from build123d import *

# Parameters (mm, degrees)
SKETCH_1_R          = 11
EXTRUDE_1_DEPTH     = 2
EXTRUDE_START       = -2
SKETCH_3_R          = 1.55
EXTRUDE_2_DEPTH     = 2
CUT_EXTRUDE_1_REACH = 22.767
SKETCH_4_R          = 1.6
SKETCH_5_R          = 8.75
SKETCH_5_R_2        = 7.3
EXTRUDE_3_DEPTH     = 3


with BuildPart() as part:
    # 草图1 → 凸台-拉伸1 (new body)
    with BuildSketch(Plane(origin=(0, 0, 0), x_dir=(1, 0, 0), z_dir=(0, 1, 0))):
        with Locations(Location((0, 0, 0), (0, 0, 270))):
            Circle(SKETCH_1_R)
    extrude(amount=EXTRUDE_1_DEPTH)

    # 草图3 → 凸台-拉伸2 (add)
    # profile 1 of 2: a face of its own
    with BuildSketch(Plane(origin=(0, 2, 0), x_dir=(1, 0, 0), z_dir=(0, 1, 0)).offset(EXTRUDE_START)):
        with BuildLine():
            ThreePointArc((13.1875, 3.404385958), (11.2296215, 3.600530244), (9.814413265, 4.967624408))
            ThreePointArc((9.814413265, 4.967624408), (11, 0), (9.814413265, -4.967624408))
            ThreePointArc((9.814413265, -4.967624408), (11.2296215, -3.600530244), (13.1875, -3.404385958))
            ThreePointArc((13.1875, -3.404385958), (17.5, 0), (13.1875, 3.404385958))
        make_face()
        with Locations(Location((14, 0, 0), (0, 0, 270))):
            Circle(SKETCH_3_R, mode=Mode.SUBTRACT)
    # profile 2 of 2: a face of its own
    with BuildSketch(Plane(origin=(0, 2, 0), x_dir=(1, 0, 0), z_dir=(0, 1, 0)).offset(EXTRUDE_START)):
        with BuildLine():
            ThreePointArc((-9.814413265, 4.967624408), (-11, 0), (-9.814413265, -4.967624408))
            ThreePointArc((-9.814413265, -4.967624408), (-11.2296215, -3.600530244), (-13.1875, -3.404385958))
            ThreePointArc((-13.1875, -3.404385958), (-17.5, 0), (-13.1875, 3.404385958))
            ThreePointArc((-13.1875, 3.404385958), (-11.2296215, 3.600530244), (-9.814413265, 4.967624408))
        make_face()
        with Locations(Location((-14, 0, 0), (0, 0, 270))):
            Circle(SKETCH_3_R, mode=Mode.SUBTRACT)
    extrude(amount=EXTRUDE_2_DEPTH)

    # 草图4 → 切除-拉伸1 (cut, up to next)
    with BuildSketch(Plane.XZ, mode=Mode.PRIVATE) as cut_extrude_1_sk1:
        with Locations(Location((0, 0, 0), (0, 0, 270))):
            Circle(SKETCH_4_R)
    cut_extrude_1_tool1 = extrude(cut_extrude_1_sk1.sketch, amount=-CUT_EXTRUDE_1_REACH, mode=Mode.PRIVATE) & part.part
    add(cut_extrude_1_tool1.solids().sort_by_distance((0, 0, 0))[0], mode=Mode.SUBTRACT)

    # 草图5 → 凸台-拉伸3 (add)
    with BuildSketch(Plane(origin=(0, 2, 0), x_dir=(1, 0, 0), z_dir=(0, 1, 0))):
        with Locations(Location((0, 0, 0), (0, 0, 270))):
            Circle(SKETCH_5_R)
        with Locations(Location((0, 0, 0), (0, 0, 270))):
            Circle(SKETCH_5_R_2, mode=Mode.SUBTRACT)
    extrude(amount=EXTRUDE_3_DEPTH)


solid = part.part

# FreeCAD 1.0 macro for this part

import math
import FreeCAD as App
import Part
import Sketcher

V = App.Vector

doc = App.newDocument("Part")
params = doc.addObject("Spreadsheet::Sheet", "Params")
for row, (alias, value) in enumerate([
    ("sketch1_diameter", "22 mm"),
    ("pad1_length", "2 mm"),
    ("sketch2_radius", "3 mm"),
    ("sketch2_radius2", "11 mm"),
    ("sketch2_diameter", "3.1 mm"),
    ("sketch2_radius3", "3.5 mm"),
    ("pad2_length", "2 mm"),
    ("sketch3_diameter", "3.2 mm"),
    ("sketch4_diameter", "17.5 mm"),
    ("sketch4_diameter2", "14.6 mm"),
    ("pad3_length", "3 mm"),
], start=1):
    params.set(f"A{row}", alias)
    params.set(f"B{row}", "=" + value)
    params.setAlias(f"B{row}", alias)

body = doc.addObject("PartDesign::Body", "Body")

# Sketch on XZ plane
sketch1 = doc.addObject("Sketcher::SketchObject", "Sketch")
body.addObject(sketch1)
sketch1.AttachmentSupport = (doc.XZ_Plane, [""])
sketch1.MapMode = "FlatFace"
sketch1.addGeometry(Part.Circle(V(0, 0, 0), V(0, 0, 1), 11), False)
sketch1.addConstraint(Sketcher.Constraint("Coincident", 0, 3, -1, 1))
sketch1.addConstraint(Sketcher.Constraint("Diameter", 0, 22.0))
sketch1.setExpression("Constraints[1]", "Params.sketch1_diameter")
pad1 = doc.addObject("PartDesign::Pad", "Pad")
body.addObject(pad1)
pad1.Profile = sketch1
pad1.setExpression("Length", "Params.pad1_length")
pad1.Reversed = True

# Sketch on XZ plane
sketch2 = doc.addObject("Sketcher::SketchObject", "Sketch001")
body.addObject(sketch2)
sketch2.AttachmentSupport = (doc.XZ_Plane, [""])
sketch2.MapMode = "FlatFace"
sketch2.addGeometry(Part.ArcOfCircle(Part.Circle(V(12.491071, -6.322431, 0), V(0, 0, 1), 3), math.radians(76.576736), math.radians(153.153473)), False)
sketch2.addGeometry(Part.ArcOfCircle(Part.Circle(V(0, 0, 0), V(0, 0, 1), 11), math.radians(-26.846527), math.radians(26.846527)), False)
sketch2.addGeometry(Part.ArcOfCircle(Part.Circle(V(12.491071, 6.322431, 0), V(0, 0, 1), 3), math.radians(-153.153473), math.radians(-76.576736)), False)
sketch2.addGeometry(Part.ArcOfCircle(Part.Circle(V(14, 0, 0), V(0, 0, 1), 3.5), math.radians(-103.423264), math.radians(103.423264)), False)
sketch2.addGeometry(Part.Circle(V(14, 0, 0), V(0, 0, 1), 1.55), False)
sketch2.addGeometry(Part.ArcOfCircle(Part.Circle(V(0, 0, 0), V(0, 0, 1), 11), math.radians(153.153473), math.radians(206.846527)), False)
sketch2.addGeometry(Part.ArcOfCircle(Part.Circle(V(-12.491071, -6.322431, 0), V(0, 0, 1), 3), math.radians(26.846527), math.radians(103.423264)), False)
sketch2.addGeometry(Part.ArcOfCircle(Part.Circle(V(-14, 0, 0), V(0, 0, 1), 3.5), math.radians(76.576736), math.radians(283.423264)), False)
sketch2.addGeometry(Part.ArcOfCircle(Part.Circle(V(-12.491071, 6.322431, 0), V(0, 0, 1), 3), math.radians(-103.423264), math.radians(-26.846527)), False)
sketch2.addGeometry(Part.Circle(V(-14, 0, 0), V(0, 0, 1), 1.55), False)
sketch2.addConstraint(Sketcher.Constraint("Tangent", 0, 2, 1, 1))
sketch2.addConstraint(Sketcher.Constraint("Tangent", 1, 2, 2, 1))
sketch2.addConstraint(Sketcher.Constraint("Tangent", 2, 2, 3, 2))
sketch2.addConstraint(Sketcher.Constraint("Tangent", 3, 1, 0, 1))
sketch2.addConstraint(Sketcher.Constraint("Tangent", 5, 2, 6, 1))
sketch2.addConstraint(Sketcher.Constraint("Tangent", 6, 2, 7, 2))
sketch2.addConstraint(Sketcher.Constraint("Tangent", 7, 1, 8, 1))
sketch2.addConstraint(Sketcher.Constraint("Tangent", 8, 2, 5, 1))
sketch2.addConstraint(Sketcher.Constraint("Coincident", 1, 3, -1, 1))
sketch2.addConstraint(Sketcher.Constraint("Coincident", 5, 3, -1, 1))
sketch2.addConstraint(Sketcher.Constraint("Coincident", 4, 3, 3, 3))
sketch2.addConstraint(Sketcher.Constraint("Coincident", 9, 3, 7, 3))
sketch2.addConstraint(Sketcher.Constraint("Equal", 0, 2))
sketch2.addConstraint(Sketcher.Constraint("Equal", 1, 5))
sketch2.addConstraint(Sketcher.Constraint("Equal", 2, 6))
sketch2.addConstraint(Sketcher.Constraint("Equal", 3, 7))
sketch2.addConstraint(Sketcher.Constraint("Equal", 6, 8))
sketch2.addConstraint(Sketcher.Constraint("Equal", 4, 9))
sketch2.addConstraint(Sketcher.Constraint("Symmetric", 3, 3, 7, 3, -1, 1))
sketch2.addConstraint(Sketcher.Constraint("PointOnObject", 3, 3, -1))
sketch2.addConstraint(Sketcher.Constraint("Radius", 0, 3.0))
sketch2.addConstraint(Sketcher.Constraint("Radius", 1, 11.0))
sketch2.addConstraint(Sketcher.Constraint("Diameter", 4, 3.1))
sketch2.addConstraint(Sketcher.Constraint("Radius", 3, 3.5))
sketch2.addConstraint(Sketcher.Constraint("DistanceX", -1, 1, 3, 3, 14.0))
sketch2.setExpression("Constraints[20]", "Params.sketch2_radius")
sketch2.setExpression("Constraints[21]", "Params.sketch2_radius2")
sketch2.setExpression("Constraints[22]", "Params.sketch2_diameter")
sketch2.setExpression("Constraints[23]", "Params.sketch2_radius3")
pad2 = doc.addObject("PartDesign::Pad", "Pad001")
body.addObject(pad2)
pad2.Profile = sketch2
pad2.setExpression("Length", "Params.pad2_length")
pad2.Reversed = True

# Sketch on XZ plane
sketch3 = doc.addObject("Sketcher::SketchObject", "Sketch002")
body.addObject(sketch3)
sketch3.AttachmentSupport = (doc.XZ_Plane, [""])
sketch3.MapMode = "FlatFace"
sketch3.addGeometry(Part.Circle(V(0, 0, 0), V(0, 0, 1), 1.6), False)
sketch3.addConstraint(Sketcher.Constraint("Coincident", 0, 3, -1, 1))
sketch3.addConstraint(Sketcher.Constraint("Diameter", 0, 3.2))
sketch3.setExpression("Constraints[1]", "Params.sketch3_diameter")
pocket1 = doc.addObject("PartDesign::Pocket", "Pocket")
body.addObject(pocket1)
pocket1.Profile = sketch3
pocket1.Type = "UpToFirst"

# Sketch on XZ plane
sketch4 = doc.addObject("Sketcher::SketchObject", "Sketch003")
body.addObject(sketch4)
sketch4.AttachmentSupport = (doc.XZ_Plane, [""])
sketch4.MapMode = "FlatFace"
sketch4.AttachmentOffset = App.Placement(V(0, 0, -2), App.Rotation())
sketch4.addGeometry(Part.Circle(V(0, 0, 0), V(0, 0, 1), 8.75), False)
sketch4.addGeometry(Part.Circle(V(0, 0, 0), V(0, 0, 1), 7.3), False)
sketch4.addConstraint(Sketcher.Constraint("Coincident", 0, 3, -1, 1))
sketch4.addConstraint(Sketcher.Constraint("Coincident", 1, 3, -1, 1))
sketch4.addConstraint(Sketcher.Constraint("Diameter", 0, 17.5))
sketch4.addConstraint(Sketcher.Constraint("Diameter", 1, 14.6))
sketch4.setExpression("Constraints[2]", "Params.sketch4_diameter")
sketch4.setExpression("Constraints[3]", "Params.sketch4_diameter2")
pad3 = doc.addObject("PartDesign::Pad", "Pad002")
body.addObject(pad3)
pad3.Profile = sketch4
pad3.setExpression("Length", "Params.pad3_length")
pad3.Reversed = True

doc.recompute()
